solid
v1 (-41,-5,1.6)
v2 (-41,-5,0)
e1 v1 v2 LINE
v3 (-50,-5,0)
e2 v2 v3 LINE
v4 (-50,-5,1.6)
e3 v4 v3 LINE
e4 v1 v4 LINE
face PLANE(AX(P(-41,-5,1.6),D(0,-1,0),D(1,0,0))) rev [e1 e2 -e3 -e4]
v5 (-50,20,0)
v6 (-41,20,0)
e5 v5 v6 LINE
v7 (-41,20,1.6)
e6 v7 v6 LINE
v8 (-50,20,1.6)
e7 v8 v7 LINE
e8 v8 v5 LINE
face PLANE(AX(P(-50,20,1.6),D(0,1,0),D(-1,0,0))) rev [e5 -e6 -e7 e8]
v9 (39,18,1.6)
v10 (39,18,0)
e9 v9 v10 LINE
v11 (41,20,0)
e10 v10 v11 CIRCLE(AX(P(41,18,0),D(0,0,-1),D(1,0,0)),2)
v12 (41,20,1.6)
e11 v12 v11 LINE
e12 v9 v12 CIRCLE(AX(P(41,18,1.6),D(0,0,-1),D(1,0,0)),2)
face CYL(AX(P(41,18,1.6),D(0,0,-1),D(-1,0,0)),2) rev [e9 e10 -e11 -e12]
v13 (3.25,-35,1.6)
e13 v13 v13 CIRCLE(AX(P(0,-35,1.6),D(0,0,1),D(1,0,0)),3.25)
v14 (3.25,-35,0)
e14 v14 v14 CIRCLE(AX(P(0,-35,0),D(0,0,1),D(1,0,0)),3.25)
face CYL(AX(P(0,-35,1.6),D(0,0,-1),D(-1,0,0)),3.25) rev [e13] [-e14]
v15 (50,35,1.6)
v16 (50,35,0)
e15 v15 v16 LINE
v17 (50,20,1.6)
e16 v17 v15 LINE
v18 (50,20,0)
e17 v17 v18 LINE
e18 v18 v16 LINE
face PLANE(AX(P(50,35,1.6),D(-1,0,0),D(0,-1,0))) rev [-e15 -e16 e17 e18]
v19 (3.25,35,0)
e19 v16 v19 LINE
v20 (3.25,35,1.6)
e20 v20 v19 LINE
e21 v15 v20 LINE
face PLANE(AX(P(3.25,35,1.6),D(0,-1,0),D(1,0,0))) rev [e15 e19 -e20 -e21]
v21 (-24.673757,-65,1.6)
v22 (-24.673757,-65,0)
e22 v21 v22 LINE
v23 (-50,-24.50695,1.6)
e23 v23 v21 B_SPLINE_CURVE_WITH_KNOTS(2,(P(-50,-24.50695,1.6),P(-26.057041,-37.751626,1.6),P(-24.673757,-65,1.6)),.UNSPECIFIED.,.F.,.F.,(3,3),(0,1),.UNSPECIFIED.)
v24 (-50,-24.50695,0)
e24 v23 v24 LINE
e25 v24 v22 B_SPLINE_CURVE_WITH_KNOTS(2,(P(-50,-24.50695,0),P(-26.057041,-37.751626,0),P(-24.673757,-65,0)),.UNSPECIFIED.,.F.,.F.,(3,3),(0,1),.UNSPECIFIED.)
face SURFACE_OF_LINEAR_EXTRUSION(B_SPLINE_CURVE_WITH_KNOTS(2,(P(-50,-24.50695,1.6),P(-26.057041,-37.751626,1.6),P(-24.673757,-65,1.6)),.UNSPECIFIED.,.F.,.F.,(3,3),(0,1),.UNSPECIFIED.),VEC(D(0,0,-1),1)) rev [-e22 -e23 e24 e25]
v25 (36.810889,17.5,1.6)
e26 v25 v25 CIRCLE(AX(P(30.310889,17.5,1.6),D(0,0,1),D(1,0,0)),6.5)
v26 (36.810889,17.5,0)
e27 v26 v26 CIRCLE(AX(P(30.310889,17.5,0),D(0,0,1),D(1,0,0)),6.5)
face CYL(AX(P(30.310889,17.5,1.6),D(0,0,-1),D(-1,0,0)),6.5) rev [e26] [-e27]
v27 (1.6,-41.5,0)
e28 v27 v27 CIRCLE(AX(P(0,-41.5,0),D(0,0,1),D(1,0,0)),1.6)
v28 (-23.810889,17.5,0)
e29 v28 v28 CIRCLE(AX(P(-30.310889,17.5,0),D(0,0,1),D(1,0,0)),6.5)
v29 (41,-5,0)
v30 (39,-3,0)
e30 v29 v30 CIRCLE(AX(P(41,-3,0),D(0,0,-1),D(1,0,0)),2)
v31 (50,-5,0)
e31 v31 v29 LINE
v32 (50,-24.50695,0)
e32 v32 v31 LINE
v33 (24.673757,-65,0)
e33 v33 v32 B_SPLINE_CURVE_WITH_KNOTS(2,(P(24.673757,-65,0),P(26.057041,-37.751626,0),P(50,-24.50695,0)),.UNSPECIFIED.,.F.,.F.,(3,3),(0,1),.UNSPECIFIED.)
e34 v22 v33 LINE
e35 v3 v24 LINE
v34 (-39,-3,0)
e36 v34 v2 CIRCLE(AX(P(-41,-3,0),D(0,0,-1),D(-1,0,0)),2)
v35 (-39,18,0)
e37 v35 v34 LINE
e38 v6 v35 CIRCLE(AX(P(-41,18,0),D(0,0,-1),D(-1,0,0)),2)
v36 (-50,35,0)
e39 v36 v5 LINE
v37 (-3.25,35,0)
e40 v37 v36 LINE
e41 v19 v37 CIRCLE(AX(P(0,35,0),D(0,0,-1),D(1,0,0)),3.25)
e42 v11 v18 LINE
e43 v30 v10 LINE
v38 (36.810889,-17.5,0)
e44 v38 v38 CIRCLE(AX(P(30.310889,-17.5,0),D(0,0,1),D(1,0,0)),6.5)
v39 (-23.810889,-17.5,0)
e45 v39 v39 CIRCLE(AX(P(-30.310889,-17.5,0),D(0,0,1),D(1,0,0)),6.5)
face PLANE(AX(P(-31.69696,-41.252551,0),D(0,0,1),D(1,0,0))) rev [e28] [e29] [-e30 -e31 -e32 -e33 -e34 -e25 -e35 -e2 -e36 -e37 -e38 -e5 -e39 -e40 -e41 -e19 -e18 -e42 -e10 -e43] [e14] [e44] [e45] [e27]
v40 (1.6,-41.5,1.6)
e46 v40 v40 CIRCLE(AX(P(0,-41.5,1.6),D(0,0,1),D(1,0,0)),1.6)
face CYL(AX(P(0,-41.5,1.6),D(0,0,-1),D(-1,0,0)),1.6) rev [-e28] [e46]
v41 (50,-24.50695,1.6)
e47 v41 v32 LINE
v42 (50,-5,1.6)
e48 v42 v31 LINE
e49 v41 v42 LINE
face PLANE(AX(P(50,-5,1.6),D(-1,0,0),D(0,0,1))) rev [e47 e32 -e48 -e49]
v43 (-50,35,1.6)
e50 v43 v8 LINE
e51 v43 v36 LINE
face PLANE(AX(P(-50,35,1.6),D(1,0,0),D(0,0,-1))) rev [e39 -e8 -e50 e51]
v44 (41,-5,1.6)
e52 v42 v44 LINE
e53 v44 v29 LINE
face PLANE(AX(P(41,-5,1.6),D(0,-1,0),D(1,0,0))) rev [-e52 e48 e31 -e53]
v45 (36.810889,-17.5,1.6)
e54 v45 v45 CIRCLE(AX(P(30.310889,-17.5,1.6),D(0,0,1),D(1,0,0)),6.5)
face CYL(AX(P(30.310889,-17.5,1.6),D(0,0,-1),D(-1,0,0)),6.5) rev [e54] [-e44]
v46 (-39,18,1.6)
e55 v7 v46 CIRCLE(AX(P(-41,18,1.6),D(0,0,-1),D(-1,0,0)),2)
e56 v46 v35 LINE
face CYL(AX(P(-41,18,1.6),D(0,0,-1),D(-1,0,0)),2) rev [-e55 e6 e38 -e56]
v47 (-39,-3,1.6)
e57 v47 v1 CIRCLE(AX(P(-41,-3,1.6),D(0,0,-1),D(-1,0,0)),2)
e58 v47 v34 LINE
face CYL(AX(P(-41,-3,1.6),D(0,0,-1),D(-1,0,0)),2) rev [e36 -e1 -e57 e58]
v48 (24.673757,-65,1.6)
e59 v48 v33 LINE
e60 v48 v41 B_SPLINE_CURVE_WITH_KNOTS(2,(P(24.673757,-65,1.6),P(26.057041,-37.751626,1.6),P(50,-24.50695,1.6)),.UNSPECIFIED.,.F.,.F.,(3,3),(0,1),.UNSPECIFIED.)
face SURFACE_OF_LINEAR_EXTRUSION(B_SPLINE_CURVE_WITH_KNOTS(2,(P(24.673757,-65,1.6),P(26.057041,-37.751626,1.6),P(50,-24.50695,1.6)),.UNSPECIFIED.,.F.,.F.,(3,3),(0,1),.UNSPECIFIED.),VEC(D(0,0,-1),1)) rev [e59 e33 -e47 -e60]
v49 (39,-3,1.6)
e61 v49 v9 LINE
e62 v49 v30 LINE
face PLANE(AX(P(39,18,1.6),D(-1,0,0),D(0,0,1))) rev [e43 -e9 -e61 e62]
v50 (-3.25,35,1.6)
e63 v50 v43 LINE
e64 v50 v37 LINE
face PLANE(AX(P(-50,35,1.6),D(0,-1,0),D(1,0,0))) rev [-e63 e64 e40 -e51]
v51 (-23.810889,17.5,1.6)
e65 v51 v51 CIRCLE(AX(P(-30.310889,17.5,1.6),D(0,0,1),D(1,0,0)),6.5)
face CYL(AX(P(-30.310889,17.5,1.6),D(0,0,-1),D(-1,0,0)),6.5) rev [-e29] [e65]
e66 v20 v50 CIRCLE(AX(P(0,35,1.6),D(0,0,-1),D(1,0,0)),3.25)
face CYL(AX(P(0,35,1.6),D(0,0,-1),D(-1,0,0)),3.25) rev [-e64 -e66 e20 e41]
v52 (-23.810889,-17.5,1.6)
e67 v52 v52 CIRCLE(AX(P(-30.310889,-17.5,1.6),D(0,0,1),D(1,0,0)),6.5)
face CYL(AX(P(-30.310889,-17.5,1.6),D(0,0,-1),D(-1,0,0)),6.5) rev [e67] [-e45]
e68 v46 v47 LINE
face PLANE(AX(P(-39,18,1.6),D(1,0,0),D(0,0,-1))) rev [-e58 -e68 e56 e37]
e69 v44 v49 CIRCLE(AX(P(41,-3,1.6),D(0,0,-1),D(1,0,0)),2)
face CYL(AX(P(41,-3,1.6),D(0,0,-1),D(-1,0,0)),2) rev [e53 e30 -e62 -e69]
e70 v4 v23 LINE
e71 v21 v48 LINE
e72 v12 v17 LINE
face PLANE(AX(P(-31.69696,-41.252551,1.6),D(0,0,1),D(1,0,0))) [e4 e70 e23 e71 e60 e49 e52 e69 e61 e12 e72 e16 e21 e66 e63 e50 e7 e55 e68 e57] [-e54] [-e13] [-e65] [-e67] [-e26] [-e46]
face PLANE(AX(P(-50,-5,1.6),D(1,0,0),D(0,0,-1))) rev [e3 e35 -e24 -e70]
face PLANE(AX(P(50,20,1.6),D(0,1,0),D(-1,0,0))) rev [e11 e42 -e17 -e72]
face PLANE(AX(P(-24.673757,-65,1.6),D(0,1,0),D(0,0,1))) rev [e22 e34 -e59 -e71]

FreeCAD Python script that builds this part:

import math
import FreeCAD as App
import Part
import Sketcher
Q = App.Units.Quantity

doc = App.newDocument("Part")
body = doc.addObject("PartDesign::Body", "Body")

# Sketch on XY plane
sketch1 = body.newObject("Sketcher::SketchObject", "Sketch")
sketch1.AttachmentSupport = (doc.getObject("XY_Plane"), [""])
sketch1.MapMode = "FlatFace"
sketch1.addGeometry(Part.LineSegment(App.Vector(-50, 20, 0), App.Vector(-41, 20, 0)), False)
sketch1.addGeometry(Part.ArcOfCircle(Part.Circle(App.Vector(-41, 18, 0), App.Vector(0, 0, 1), 2), math.radians(0), math.radians(90)), False)
sketch1.addGeometry(Part.LineSegment(App.Vector(-39, 18, 0), App.Vector(-39, -3, 0)), False)
sketch1.addGeometry(Part.ArcOfCircle(Part.Circle(App.Vector(-41, -3, 0), App.Vector(0, 0, 1), 2), math.radians(-90), math.radians(0)), False)
sketch1.addGeometry(Part.LineSegment(App.Vector(-41, -5, 0), App.Vector(-50, -5, 0)), False)
sketch1.addGeometry(Part.LineSegment(App.Vector(-50, -5, 0), App.Vector(-50, -24.50695, 0)), False)
sketch1.addGeometry(Part.BSplineCurve([App.Vector(-50, -24.50695, 0), App.Vector(-26.057041, -37.751626, 0), App.Vector(-24.673757, -65, 0)], [3, 3], [0, 1], False, 2, [1, 1, 1], False), False)
sketch1.addGeometry(Part.LineSegment(App.Vector(-24.673757, -65, 0), App.Vector(24.673757, -65, 0)), False)
sketch1.addGeometry(Part.BSplineCurve([App.Vector(50, -24.50695, 0), App.Vector(26.057041, -37.751626, 0), App.Vector(24.673757, -65, 0)], [3, 3], [0, 1], False, 2, [1, 1, 1], False), False)
sketch1.addGeometry(Part.LineSegment(App.Vector(50, -24.50695, 0), App.Vector(50, -5, 0)), False)
sketch1.addGeometry(Part.LineSegment(App.Vector(50, -5, 0), App.Vector(41, -5, 0)), False)
sketch1.addGeometry(Part.ArcOfCircle(Part.Circle(App.Vector(41, -3, 0), App.Vector(0, 0, 1), 2), math.radians(-180), math.radians(-90)), False)
sketch1.addGeometry(Part.LineSegment(App.Vector(39, -3, 0), App.Vector(39, 18, 0)), False)
sketch1.addGeometry(Part.ArcOfCircle(Part.Circle(App.Vector(41, 18, 0), App.Vector(0, 0, 1), 2), math.radians(90), math.radians(180)), False)
sketch1.addGeometry(Part.LineSegment(App.Vector(41, 20, 0), App.Vector(50, 20, 0)), False)
sketch1.addGeometry(Part.LineSegment(App.Vector(50, 20, 0), App.Vector(50, 35, 0)), False)
sketch1.addGeometry(Part.LineSegment(App.Vector(50, 35, 0), App.Vector(3.25, 35, 0)), False)
sketch1.addGeometry(Part.ArcOfCircle(Part.Circle(App.Vector(0, 35, 0), App.Vector(0, 0, 1), 3.25), math.radians(180), math.radians(360)), False)
sketch1.addGeometry(Part.LineSegment(App.Vector(-3.25, 35, 0), App.Vector(-50, 35, 0)), False)
sketch1.addGeometry(Part.LineSegment(App.Vector(-50, 35, 0), App.Vector(-50, 20, 0)), False)
sketch1.addGeometry(Part.Circle(App.Vector(-30.310889, -17.5, 0), App.Vector(0, 0, 1), 6.5), False)
sketch1.addGeometry(Part.Circle(App.Vector(0, -41.5, 0), App.Vector(0, 0, 1), 1.6), False)
sketch1.addGeometry(Part.Circle(App.Vector(0, -35, 0), App.Vector(0, 0, 1), 3.25), False)
sketch1.addGeometry(Part.Circle(App.Vector(30.310889, -17.5, 0), App.Vector(0, 0, 1), 6.5), False)
sketch1.addGeometry(Part.Circle(App.Vector(-30.310889, 17.5, 0), App.Vector(0, 0, 1), 6.5), False)
sketch1.addGeometry(Part.Circle(App.Vector(30.310889, 17.5, 0), App.Vector(0, 0, 1), 6.5), False)
sketch1.addConstraint(Sketcher.Constraint("Block", 6))
sketch1.addConstraint(Sketcher.Constraint("Block", 8))
sketch1.addConstraint(Sketcher.Constraint("Tangent", 0, 2, 1, 2))
sketch1.addConstraint(Sketcher.Constraint("Tangent", 1, 1, 2, 1))
sketch1.addConstraint(Sketcher.Constraint("Tangent", 2, 2, 3, 2))
sketch1.addConstraint(Sketcher.Constraint("Tangent", 3, 1, 4, 1))
sketch1.addConstraint(Sketcher.Constraint("Coincident", 4, 2, 5, 1))
sketch1.addConstraint(Sketcher.Constraint("Coincident", 5, 2, 6, 1))
sketch1.addConstraint(Sketcher.Constraint("Coincident", 6, 2, 7, 1))
sketch1.addConstraint(Sketcher.Constraint("Coincident", 7, 2, 8, 2))
sketch1.addConstraint(Sketcher.Constraint("Coincident", 8, 1, 9, 1))
sketch1.addConstraint(Sketcher.Constraint("Coincident", 9, 2, 10, 1))
sketch1.addConstraint(Sketcher.Constraint("Tangent", 10, 2, 11, 2))
sketch1.addConstraint(Sketcher.Constraint("Tangent", 11, 1, 12, 1))
sketch1.addConstraint(Sketcher.Constraint("Tangent", 12, 2, 13, 2))
sketch1.addConstraint(Sketcher.Constraint("Tangent", 13, 1, 14, 1))
sketch1.addConstraint(Sketcher.Constraint("Coincident", 14, 2, 15, 1))
sketch1.addConstraint(Sketcher.Constraint("Coincident", 15, 2, 16, 1))
sketch1.addConstraint(Sketcher.Constraint("Coincident", 16, 2, 17, 2))
sketch1.addConstraint(Sketcher.Constraint("Coincident", 17, 1, 18, 1))
sketch1.addConstraint(Sketcher.Constraint("Coincident", 18, 2, 19, 1))
sketch1.addConstraint(Sketcher.Constraint("Coincident", 19, 2, 0, 1))
sketch1.addConstraint(Sketcher.Constraint("Horizontal", 0))
sketch1.addConstraint(Sketcher.Constraint("Vertical", 2))
sketch1.addConstraint(Sketcher.Constraint("Horizontal", 4))
sketch1.addConstraint(Sketcher.Constraint("Vertical", 5))
sketch1.addConstraint(Sketcher.Constraint("Vertical", 9))
sketch1.addConstraint(Sketcher.Constraint("Horizontal", 10))
sketch1.addConstraint(Sketcher.Constraint("Vertical", 12))
sketch1.addConstraint(Sketcher.Constraint("Horizontal", 14))
sketch1.addConstraint(Sketcher.Constraint("Vertical", 15))
sketch1.addConstraint(Sketcher.Constraint("Horizontal", 16))
sketch1.addConstraint(Sketcher.Constraint("Horizontal", 18))
sketch1.addConstraint(Sketcher.Constraint("Vertical", 19))
sketch1.addConstraint(Sketcher.Constraint("Equal", 1, 3))
sketch1.addConstraint(Sketcher.Constraint("Equal", 3, 11))
sketch1.addConstraint(Sketcher.Constraint("Equal", 11, 13))
sketch1.addConstraint(Sketcher.Constraint("Equal", 17, 22))
sketch1.addConstraint(Sketcher.Constraint("Equal", 20, 23))
sketch1.addConstraint(Sketcher.Constraint("Equal", 23, 24))
sketch1.addConstraint(Sketcher.Constraint("Equal", 24, 25))
sketch1.addConstraint(Sketcher.Constraint("Symmetric", 17, 3, 22, 3, -1, 1))
sketch1.addConstraint(Sketcher.Constraint("Symmetric", 23, 3, 24, 3, -1, 1))
sketch1.addConstraint(Sketcher.Constraint("Symmetric", 20, 3, 25, 3, -1, 1))
sketch1.addConstraint(Sketcher.Constraint("Symmetric", 3, 3, 11, 3, -2))
sketch1.addConstraint(Sketcher.Constraint("Symmetric", 20, 3, 23, 3, -2))
sketch1.addConstraint(Sketcher.Constraint("Symmetric", 16, 2, 17, 1, -2))
sketch1.addConstraint(Sketcher.Constraint("Symmetric", 14, 2, 19, 2, -2))
sketch1.addConstraint(Sketcher.Constraint("PointOnObject", 21, 3, -2))
sketch1.addConstraint(Sketcher.Constraint("Horizontal", 17, 3, 15, 2))
sketch1.addConstraint(Sketcher.Constraint("Vertical", 9, 2, 14, 2))
sketch1.addConstraint(Sketcher.Constraint("Diameter", 20, Q("13 mm")))
sketch1.addConstraint(Sketcher.Constraint("Radius", 1, Q("2 mm")))
sketch1.addConstraint(Sketcher.Constraint("Diameter", 21, Q("3.2 mm")))
sketch1.addConstraint(Sketcher.Constraint("Diameter", 22, Q("6.5 mm")))
sketch1.addConstraint(Sketcher.Constraint("DistanceX", 0, 1, 0, 2, Q("9 mm")))
sketch1.addConstraint(Sketcher.Constraint("DistanceY", 2, 2, 2, 1, Q("21 mm")))
sketch1.addConstraint(Sketcher.Constraint("DistanceY", 15, 1, 15, 2, Q("15 mm")))
sketch1.addConstraint(Sketcher.Constraint("DistanceY", -1, 1, 1, 3, Q("18 mm")))
sketch1.addConstraint(Sketcher.Constraint("DistanceY", 21, 3, 20, 3, Q("24 mm")))
sketch1.addConstraint(Sketcher.Constraint("DistanceY", 20, 3, 24, 3, Q("35 mm")))
sketch1.addConstraint(Sketcher.Constraint("DistanceX", 20, 3, -1, 1, Q("30.310889 mm")))
pad1 = body.newObject("PartDesign::Pad", "Pad")
pad1.Profile = sketch1
pad1.Length = 1.6

doc.recompute()
